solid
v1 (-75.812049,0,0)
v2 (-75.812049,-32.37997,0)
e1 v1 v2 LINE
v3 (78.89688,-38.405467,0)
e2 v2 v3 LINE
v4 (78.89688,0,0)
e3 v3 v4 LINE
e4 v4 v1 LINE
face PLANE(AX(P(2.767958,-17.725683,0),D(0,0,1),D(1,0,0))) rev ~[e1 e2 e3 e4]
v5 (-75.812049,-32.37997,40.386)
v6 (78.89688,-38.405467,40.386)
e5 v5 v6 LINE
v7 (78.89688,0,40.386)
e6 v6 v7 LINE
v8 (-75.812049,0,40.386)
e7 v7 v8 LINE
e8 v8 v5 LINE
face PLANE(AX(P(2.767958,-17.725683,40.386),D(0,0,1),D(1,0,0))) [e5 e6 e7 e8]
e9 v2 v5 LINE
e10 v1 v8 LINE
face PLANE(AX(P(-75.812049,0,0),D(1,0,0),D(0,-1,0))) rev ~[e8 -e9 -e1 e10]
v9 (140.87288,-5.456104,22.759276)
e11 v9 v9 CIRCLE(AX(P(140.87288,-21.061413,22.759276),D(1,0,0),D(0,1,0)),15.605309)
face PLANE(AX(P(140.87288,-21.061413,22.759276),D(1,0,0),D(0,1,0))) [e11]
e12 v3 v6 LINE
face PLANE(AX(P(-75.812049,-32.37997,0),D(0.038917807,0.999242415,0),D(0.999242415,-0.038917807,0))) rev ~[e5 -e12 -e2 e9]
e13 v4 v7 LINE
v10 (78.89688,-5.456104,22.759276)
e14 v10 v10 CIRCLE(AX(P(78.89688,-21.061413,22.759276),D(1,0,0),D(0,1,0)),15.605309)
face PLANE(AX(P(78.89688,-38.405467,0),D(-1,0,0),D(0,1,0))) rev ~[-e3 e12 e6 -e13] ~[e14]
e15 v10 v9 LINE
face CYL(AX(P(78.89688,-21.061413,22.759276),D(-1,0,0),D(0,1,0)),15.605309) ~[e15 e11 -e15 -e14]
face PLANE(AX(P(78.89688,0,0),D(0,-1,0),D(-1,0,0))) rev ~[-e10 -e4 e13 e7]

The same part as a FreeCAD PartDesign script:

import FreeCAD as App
import Part
import Sketcher

V = App.Vector
Q = App.Units.Quantity


def add_polygon(sketch, points):
    """Adds a closed chain of lines whose ends are joined by coincident constraints."""
    first, n = sketch.GeometryCount, len(points)
    for a, b in zip(points, points[1:] + points[:1]):
        sketch.addGeometry(Part.LineSegment(App.Vector(*a, 0), App.Vector(*b, 0)), False)
    for i in range(n):
        sketch.addConstraint(Sketcher.Constraint("Coincident", first + i, 2, first + (i + 1) % n, 1))

doc = App.newDocument("Part")
body = doc.addObject("PartDesign::Body", "Body")

sketch1 = body.newObject("Sketcher::SketchObject", "Sketch")
sketch1.AttachmentSupport = (doc.getObject("XY_Plane"), [""])
sketch1.MapMode = "FlatFace"
add_polygon(sketch1, [(79, 0), (-76, 0), (-76, -32), (79, -38)])
sketch1.addConstraint([
    Sketcher.Constraint("Horizontal", 0),
    Sketcher.Constraint("Vertical", 1),
    Sketcher.Constraint("Vertical", 3),
    Sketcher.Constraint("PointOnObject", 0, 2, -1),
    Sketcher.Constraint("DistanceX", 0, 2, 0, 1, 154.708929),
    Sketcher.Constraint("DistanceY", 1, 2, 1, 1, 32.37997),
    Sketcher.Constraint("DistanceY", 3, 1, 3, 2, 38.405467),
    Sketcher.Constraint("DistanceX", 0, 2, -1, 1, 75.812049),
])
pad1 = body.newObject("PartDesign::Pad", "Pad")
pad1.Profile = sketch1
pad1.Length = Q("1.59 in")

sketch2 = body.newObject("Sketcher::SketchObject", "Sketch001")
sketch2.AttachmentSupport = (doc.getObject("YZ_Plane"), [""])
sketch2.MapMode = "FlatFace"
sketch2.AttachmentOffset = App.Placement(V(0, 0, 78.89688), App.Rotation())
sketch2.addGeometry(Part.Circle(V(-21, 23, 0), V(0, 0, 1), 16), False)
sketch2.addConstraint([
    Sketcher.Constraint("Diameter", 0, 31.210618),
    Sketcher.Constraint("DistanceX", 0, 3, -1, 1, 21.061413),
    Sketcher.Constraint("DistanceY", -1, 1, 0, 3, 22.759276),
])
pad2 = body.newObject("PartDesign::Pad", "Pad001")
pad2.Profile = sketch2
pad2.Length = Q("2.44 in")

doc.recompute()
